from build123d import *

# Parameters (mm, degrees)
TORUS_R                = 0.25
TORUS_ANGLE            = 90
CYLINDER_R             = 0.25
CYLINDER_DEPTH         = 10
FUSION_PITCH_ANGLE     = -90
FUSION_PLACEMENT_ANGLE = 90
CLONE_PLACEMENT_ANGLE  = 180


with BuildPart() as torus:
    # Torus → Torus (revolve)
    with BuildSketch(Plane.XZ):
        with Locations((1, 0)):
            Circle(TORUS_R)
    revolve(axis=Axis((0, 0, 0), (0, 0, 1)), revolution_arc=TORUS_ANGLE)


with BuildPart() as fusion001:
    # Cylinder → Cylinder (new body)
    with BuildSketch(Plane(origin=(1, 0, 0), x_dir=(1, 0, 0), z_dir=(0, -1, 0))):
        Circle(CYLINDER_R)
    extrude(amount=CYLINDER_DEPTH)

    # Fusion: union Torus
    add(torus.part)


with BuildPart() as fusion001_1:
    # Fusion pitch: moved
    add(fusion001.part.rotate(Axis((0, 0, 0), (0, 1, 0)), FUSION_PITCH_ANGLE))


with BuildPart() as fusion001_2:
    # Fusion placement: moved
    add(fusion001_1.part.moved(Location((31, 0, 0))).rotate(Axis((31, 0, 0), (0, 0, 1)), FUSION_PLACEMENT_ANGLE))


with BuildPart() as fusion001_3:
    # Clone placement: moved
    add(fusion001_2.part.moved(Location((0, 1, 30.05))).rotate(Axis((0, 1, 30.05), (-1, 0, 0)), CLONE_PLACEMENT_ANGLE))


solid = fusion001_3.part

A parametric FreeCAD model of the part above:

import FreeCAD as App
import Part
import Sketcher

V = App.Vector
Q = App.Units.Quantity

doc = App.newDocument("Part")
body = doc.addObject("PartDesign::Body", "Body")

sketch1 = doc.addObject("Sketcher::SketchObject", "Sketch")
body.addObject(sketch1)
sketch1.AttachmentSupport = (doc.XZ_Plane, [""])
sketch1.MapMode = "FlatFace"
sketch1.addGeometry(Part.Circle(V(1, 0, 0), V(0, 0, 1), 0.25), False)
sketch1.addConstraint([
    Sketcher.Constraint("PointOnObject", 0, 3, -1),
    Sketcher.Constraint("Diameter", 0, Q("0.5 mm")),
    Sketcher.Constraint("DistanceX", -1, 1, 0, 3, Q("1 mm")),
])
revolution = doc.addObject("PartDesign::Revolution", "Revolution")
body.addObject(revolution)
revolution.Profile = sketch1
revolution.ReferenceAxis = (sketch1, ["V_Axis"])
revolution.Angle = 90
body2 = doc.addObject("PartDesign::Body", "Body001")

sketch2 = doc.addObject("Sketcher::SketchObject", "Sketch001")
body2.addObject(sketch2)
sketch2.AttachmentSupport = (doc.getObject("XZ_Plane001"), [""])
sketch2.MapMode = "FlatFace"
sketch2.addGeometry(Part.Circle(V(1, 0, 0), V(0, 0, 1), 0.25), False)
sketch2.addConstraint([
    Sketcher.Constraint("PointOnObject", 0, 3, -1),
    Sketcher.Constraint("Diameter", 0, Q("0.5 mm")),
    Sketcher.Constraint("DistanceX", -1, 1, 0, 3, Q("1 mm")),
])
pad1 = doc.addObject("PartDesign::Pad", "Pad")
body2.addObject(pad1)
pad1.Profile = sketch2
pad1.Length = 10
doc.recompute()

boolean = doc.addObject("PartDesign::Boolean", "Boolean")
body2.addObject(boolean)
boolean.Type = "Fuse"
boolean.addObjects([body])
body3 = doc.addObject("PartDesign::Body", "Body002")
doc.recompute()

body2.Placement = App.Placement(V(0, 0, 0), App.Rotation(V(0, 1, 0), 270))
boolean2 = doc.addObject("PartDesign::Boolean", "Boolean001")
body3.addObject(boolean2)
boolean2.Type = "Fuse"
boolean2.addObjects([body2])
body4 = doc.addObject("PartDesign::Body", "Body003")
doc.recompute()

body3.Placement = App.Placement(V(31, 0, 0), App.Rotation(V(0, 0, 1), 90))
boolean3 = doc.addObject("PartDesign::Boolean", "Boolean002")
body4.addObject(boolean3)
boolean3.Type = "Fuse"
boolean3.addObjects([body3])
body5 = doc.addObject("PartDesign::Body", "Body004")
doc.recompute()

body4.Placement = App.Placement(V(0, 1, 30.05), App.Rotation(V(-1, 0, 0), 180))
boolean4 = doc.addObject("PartDesign::Boolean", "Boolean003")
body5.addObject(boolean4)
boolean4.Type = "Fuse"
boolean4.addObjects([body4])

doc.recompute()
